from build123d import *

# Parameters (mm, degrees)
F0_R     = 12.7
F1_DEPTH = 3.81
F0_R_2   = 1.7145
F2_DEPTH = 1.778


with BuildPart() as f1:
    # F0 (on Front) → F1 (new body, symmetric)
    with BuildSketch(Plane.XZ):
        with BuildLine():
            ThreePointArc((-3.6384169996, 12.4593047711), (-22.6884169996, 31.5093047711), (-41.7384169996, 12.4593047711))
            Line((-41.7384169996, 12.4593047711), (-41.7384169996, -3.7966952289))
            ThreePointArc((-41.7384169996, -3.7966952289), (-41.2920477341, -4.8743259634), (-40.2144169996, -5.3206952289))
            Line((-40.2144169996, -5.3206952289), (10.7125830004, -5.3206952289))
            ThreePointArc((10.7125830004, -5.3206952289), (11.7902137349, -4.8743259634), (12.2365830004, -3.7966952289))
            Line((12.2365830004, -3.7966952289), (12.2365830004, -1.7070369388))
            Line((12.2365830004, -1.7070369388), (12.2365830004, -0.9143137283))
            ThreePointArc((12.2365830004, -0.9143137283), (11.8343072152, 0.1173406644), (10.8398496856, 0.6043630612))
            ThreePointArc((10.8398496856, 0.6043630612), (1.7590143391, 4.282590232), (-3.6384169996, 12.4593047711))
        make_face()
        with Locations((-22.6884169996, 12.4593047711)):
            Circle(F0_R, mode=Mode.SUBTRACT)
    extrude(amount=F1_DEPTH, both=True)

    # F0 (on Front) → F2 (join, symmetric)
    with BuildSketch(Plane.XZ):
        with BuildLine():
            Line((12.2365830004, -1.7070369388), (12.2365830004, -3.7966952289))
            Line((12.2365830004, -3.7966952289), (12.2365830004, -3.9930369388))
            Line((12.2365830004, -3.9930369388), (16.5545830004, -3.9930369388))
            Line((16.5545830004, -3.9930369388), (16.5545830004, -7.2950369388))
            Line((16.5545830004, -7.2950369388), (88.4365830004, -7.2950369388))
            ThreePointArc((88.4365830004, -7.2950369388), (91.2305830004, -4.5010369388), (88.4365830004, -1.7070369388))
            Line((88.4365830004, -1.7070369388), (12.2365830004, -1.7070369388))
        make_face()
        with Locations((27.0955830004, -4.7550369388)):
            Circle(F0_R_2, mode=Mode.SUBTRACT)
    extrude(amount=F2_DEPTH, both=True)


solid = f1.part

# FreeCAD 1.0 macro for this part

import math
import FreeCAD as App
import Part
import Sketcher
from FreeCAD import Vector
Q = App.Units.Quantity

doc = App.newDocument("Part")
params = doc.addObject("Spreadsheet::Sheet", "Params")
for row, (alias, value) in enumerate([
    ("sketch1_diameter", "1 in"),
    ("sketch1_radius", "0.75 in"),
    ("sketch1_radius2", "0.06 in"),
    ("sketch1_radius3", "0.65 in"),
    ("sketch1_height", "0.64 in"),
    ("pad1_length", "0.3 in"),
    ("sketch2_width", "3 in"),
    ("sketch2_radius", "0.11 in"),
    ("sketch2_diameter", "0.135 in"),
    ("sketch2_width2", "0.17 in"),
    ("sketch2_height", "0.09 in"),
    ("pad2_length", "0.14 in"),
], start=1):
    params.set(f"A{row}", alias)
    params.set(f"B{row}", "=" + value)
    params.setAlias(f"B{row}", alias)

body = doc.addObject("PartDesign::Body", "Body")

sketch1 = body.newObject("Sketcher::SketchObject", "Sketch")
sketch1.AttachmentSupport = (doc.getObject("XZ_Plane"), [""])
sketch1.MapMode = "FlatFace"
sketch1.addGeometry([
    Part.ArcOfCircle(Part.Circle(Vector(-22.7, 12.5, 0), Vector(0, 0, 1), 19.1), math.radians(0), math.radians(180)),
    Part.LineSegment(Vector(-41.7, 12.5, 0), Vector(-41.7, -3.8, 0)),
    Part.ArcOfCircle(Part.Circle(Vector(-40.2, -3.8, 0), Vector(0, 0, 1), 1.5), math.radians(180), math.radians(270)),
    Part.LineSegment(Vector(-40.2, -5.3, 0), Vector(10.7, -5.3, 0)),
    Part.ArcOfCircle(Part.Circle(Vector(10.7, -3.8, 0), Vector(0, 0, 1), 1.5), math.radians(-90), math.radians(0)),
    Part.LineSegment(Vector(12.2, -3.8, 0), Vector(12.2, -0.9, 0)),
    Part.ArcOfCircle(Part.Circle(Vector(10.7, -0.9, 0), Vector(0, 0, 1), 1.5), math.radians(0), math.radians(85)),
    Part.ArcOfCircle(Part.Circle(Vector(12.2, 17.1, 0), Vector(0, 0, 1), 16.5), math.radians(-164), math.radians(-95)),
    Part.Circle(Vector(-22.7, 12.5, 0), Vector(0, 0, 1), 12.7),
], False)
sketch1.addConstraint([
    Sketcher.Constraint("Tangent", 0, 2, 1, 1),
    Sketcher.Constraint("Tangent", 1, 2, 2, 1),
    Sketcher.Constraint("Tangent", 2, 2, 3, 1),
    Sketcher.Constraint("Tangent", 3, 2, 4, 1),
    Sketcher.Constraint("Tangent", 4, 2, 5, 1),
    Sketcher.Constraint("Tangent", 5, 2, 6, 1),
    Sketcher.Constraint("Tangent", 6, 2, 7, 2),
    Sketcher.Constraint("Coincident", 7, 1, 0, 1),
    Sketcher.Constraint("Vertical", 1),
    Sketcher.Constraint("Horizontal", 3),
    Sketcher.Constraint("Vertical", 5),
    Sketcher.Constraint("Coincident", 8, 3, 0, 3),
    Sketcher.Constraint("Equal", 2, 4),
    Sketcher.Constraint("Equal", 4, 6),
    Sketcher.Constraint("Horizontal", 0, 2, 7, 1),
    Sketcher.Constraint("Diameter", 8, Q("1 in")),
    Sketcher.Constraint("Radius", 0, Q("0.75 in")),
    Sketcher.Constraint("Radius", 2, Q("0.06 in")),
    Sketcher.Constraint("Radius", 7, Q("0.65 in")),
    Sketcher.Constraint("DistanceY", 1, 2, 1, 1, Q("0.64 in")),
    Sketcher.Constraint("DistanceX", 3, 1, 3, 2, Q("2.005 in")),
    Sketcher.Constraint("DistanceY", 5, 1, 5, 2, 2.882382),
    Sketcher.Constraint("DistanceX", -1, 1, 6, 2, 10.83985),
    Sketcher.Constraint("DistanceY", -1, 1, 0, 3, 12.459305),
])
sketch1.setExpression("Constraints[15]", "Params.sketch1_diameter")
sketch1.setExpression("Constraints[16]", "Params.sketch1_radius")
sketch1.setExpression("Constraints[17]", "Params.sketch1_radius2")
sketch1.setExpression("Constraints[18]", "Params.sketch1_radius3")
sketch1.setExpression("Constraints[19]", "Params.sketch1_height")
pad1 = body.newObject("PartDesign::Pad", "Pad")
pad1.Profile = sketch1
pad1.setExpression("Length", "Params.pad1_length")
pad1.Midplane = True

sketch2 = body.newObject("Sketcher::SketchObject", "Sketch001")
sketch2.AttachmentSupport = (doc.getObject("XZ_Plane"), [""])
sketch2.MapMode = "FlatFace"
sketch2.addGeometry([
    Part.LineSegment(Vector(12.2, -1.7, 0), Vector(12.2, -4, 0)),
    Part.LineSegment(Vector(12.2, -4, 0), Vector(16.6, -4, 0)),
    Part.LineSegment(Vector(16.6, -4, 0), Vector(16.6, -7.3, 0)),
    Part.LineSegment(Vector(16.6, -7.3, 0), Vector(88.4, -7.3, 0)),
    Part.ArcOfCircle(Part.Circle(Vector(88.4, -4.5, 0), Vector(0, 0, 1), 2.8), math.radians(-90), math.radians(90)),
    Part.LineSegment(Vector(88.4, -1.7, 0), Vector(12.2, -1.7, 0)),
    Part.Circle(Vector(27.1, -4.8, 0), Vector(0, 0, 1), 1.7),
], False)
sketch2.addConstraint([
    Sketcher.Constraint("Coincident", 0, 2, 1, 1),
    Sketcher.Constraint("Coincident", 1, 2, 2, 1),
    Sketcher.Constraint("Coincident", 2, 2, 3, 1),
    Sketcher.Constraint("Tangent", 3, 2, 4, 1),
    Sketcher.Constraint("Tangent", 4, 2, 5, 1),
    Sketcher.Constraint("Coincident", 5, 2, 0, 1),
    Sketcher.Constraint("Vertical", 0),
    Sketcher.Constraint("Horizontal", 1),
    Sketcher.Constraint("Vertical", 2),
    Sketcher.Constraint("Horizontal", 3),
    Sketcher.Constraint("Horizontal", 5),
    Sketcher.Constraint("DistanceX", 5, 2, 5, 1, Q("3 in")),
    Sketcher.Constraint("Radius", 4, Q("0.11 in")),
    Sketcher.Constraint("Diameter", 6, Q("0.135 in")),
    Sketcher.Constraint("DistanceX", 1, 1, 1, 2, Q("0.17 in")),
    Sketcher.Constraint("DistanceY", 0, 2, 0, 1, Q("0.09 in")),
    Sketcher.Constraint("DistanceY", 2, 2, 6, 3, Q("0.1 in")),
    Sketcher.Constraint("DistanceX", 6, 3, 4, 3, Q("2.415 in")),
    Sketcher.Constraint("DistanceX", -1, 1, 4, 3, 88.436583),
    Sketcher.Constraint("DistanceY", 4, 3, -1, 1, 4.501037),
])
sketch2.setExpression("Constraints[11]", "Params.sketch2_width")
sketch2.setExpression("Constraints[12]", "Params.sketch2_radius")
sketch2.setExpression("Constraints[13]", "Params.sketch2_diameter")
sketch2.setExpression("Constraints[14]", "Params.sketch2_width2")
sketch2.setExpression("Constraints[15]", "Params.sketch2_height")
pad2 = body.newObject("PartDesign::Pad", "Pad001")
pad2.Profile = sketch2
pad2.setExpression("Length", "Params.pad2_length")
pad2.Midplane = True

doc.recompute()
